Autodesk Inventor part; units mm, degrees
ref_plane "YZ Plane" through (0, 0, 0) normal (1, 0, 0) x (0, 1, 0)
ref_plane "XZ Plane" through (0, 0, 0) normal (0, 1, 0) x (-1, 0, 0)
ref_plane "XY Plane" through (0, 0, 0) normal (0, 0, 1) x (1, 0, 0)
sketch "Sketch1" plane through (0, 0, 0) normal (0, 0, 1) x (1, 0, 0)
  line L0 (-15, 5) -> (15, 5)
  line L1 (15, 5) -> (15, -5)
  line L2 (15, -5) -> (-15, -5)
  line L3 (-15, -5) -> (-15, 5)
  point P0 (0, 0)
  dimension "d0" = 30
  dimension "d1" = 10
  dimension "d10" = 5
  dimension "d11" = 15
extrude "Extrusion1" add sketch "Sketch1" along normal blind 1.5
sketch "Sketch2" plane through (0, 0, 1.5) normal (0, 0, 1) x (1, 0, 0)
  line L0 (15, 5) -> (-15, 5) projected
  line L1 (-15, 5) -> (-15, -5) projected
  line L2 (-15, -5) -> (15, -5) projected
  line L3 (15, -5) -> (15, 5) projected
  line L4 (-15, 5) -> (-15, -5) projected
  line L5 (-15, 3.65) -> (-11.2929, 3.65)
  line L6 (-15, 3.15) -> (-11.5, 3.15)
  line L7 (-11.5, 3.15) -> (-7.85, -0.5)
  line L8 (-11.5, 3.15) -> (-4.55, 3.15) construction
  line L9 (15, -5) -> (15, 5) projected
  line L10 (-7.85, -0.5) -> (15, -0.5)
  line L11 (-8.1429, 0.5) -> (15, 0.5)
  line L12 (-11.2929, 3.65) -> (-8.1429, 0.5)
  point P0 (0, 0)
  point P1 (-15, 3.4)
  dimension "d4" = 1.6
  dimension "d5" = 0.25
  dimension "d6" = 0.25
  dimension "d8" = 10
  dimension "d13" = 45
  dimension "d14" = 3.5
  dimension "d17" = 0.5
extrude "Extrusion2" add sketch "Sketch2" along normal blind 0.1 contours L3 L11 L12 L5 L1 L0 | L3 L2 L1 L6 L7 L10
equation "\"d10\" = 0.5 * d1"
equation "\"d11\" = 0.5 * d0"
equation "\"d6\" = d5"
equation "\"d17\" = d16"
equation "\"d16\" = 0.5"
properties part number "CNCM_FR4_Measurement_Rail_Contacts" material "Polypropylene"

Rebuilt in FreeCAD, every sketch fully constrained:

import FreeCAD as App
import Part
import Sketcher
Q = App.Units.Quantity

doc = App.newDocument("Part")
body = doc.addObject("PartDesign::Body", "Body")

# Sketch on XY plane
sketch1 = doc.addObject("Sketcher::SketchObject", "Sketch")
body.addObject(sketch1)
sketch1.AttachmentSupport = (doc.XY_Plane, [""])
sketch1.MapMode = "FlatFace"
sketch1.addGeometry([
    Part.LineSegment(App.Vector(15, 5, 0), App.Vector(-15, 5, 0)),
    Part.LineSegment(App.Vector(-15, 5, 0), App.Vector(-15, -5, 0)),
    Part.LineSegment(App.Vector(-15, -5, 0), App.Vector(15, -5, 0)),
    Part.LineSegment(App.Vector(15, -5, 0), App.Vector(15, 5, 0)),
], False)
sketch1.addConstraint([
    Sketcher.Constraint("Coincident", 0, 2, 1, 1),
    Sketcher.Constraint("Coincident", 1, 2, 2, 1),
    Sketcher.Constraint("Coincident", 2, 2, 3, 1),
    Sketcher.Constraint("Coincident", 3, 2, 0, 1),
    Sketcher.Constraint("Horizontal", 0),
    Sketcher.Constraint("Vertical", 1),
    Sketcher.Constraint("Horizontal", 2),
    Sketcher.Constraint("Vertical", 3),
    Sketcher.Constraint("Symmetric", 0, 2, 2, 2, -1, 1),
    Sketcher.Constraint("DistanceX", 0, 2, 0, 1, Q("30 mm")),
    Sketcher.Constraint("DistanceY", 1, 2, 1, 1, Q("10 mm")),
])
pad1 = doc.addObject("PartDesign::Pad", "Pad")
body.addObject(pad1)
pad1.Profile = sketch1
pad1.Length = 1.5

# Sketch on XY plane
sketch2 = doc.addObject("Sketcher::SketchObject", "Sketch001")
body.addObject(sketch2)
sketch2.AttachmentSupport = (doc.XY_Plane, [""])
sketch2.MapMode = "FlatFace"
sketch2.AttachmentOffset = App.Placement(App.Vector(0, 0, 1.5), App.Rotation())
sketch2.addGeometry([
    Part.LineSegment(App.Vector(15, 0.5, 0), App.Vector(15, 5, 0)),  # 0
    Part.LineSegment(App.Vector(15, 5, 0), App.Vector(-15, 5, 0)),  # 1
    Part.LineSegment(App.Vector(-15, 5, 0), App.Vector(-15, 3.6, 0)),  # 2
    Part.LineSegment(App.Vector(-15, 3.6, 0), App.Vector(-11.3, 3.6, 0)),  # 3
    Part.LineSegment(App.Vector(-11.3, 3.6, 0), App.Vector(-8.1, 0.5, 0)),  # 4
    Part.LineSegment(App.Vector(-8.1, 0.5, 0), App.Vector(15, 0.5, 0)),  # 5
    Part.LineSegment(App.Vector(15, -5, 0), App.Vector(15, -0.5, 0)),  # 6
    Part.LineSegment(App.Vector(15, -0.5, 0), App.Vector(-7.8, -0.5, 0)),  # 7
    Part.LineSegment(App.Vector(-7.8, -0.5, 0), App.Vector(-11.5, 3.1, 0)),  # 8
    Part.LineSegment(App.Vector(-11.5, 3.1, 0), App.Vector(-15, 3.1, 0)),  # 9
    Part.LineSegment(App.Vector(-15, 3.1, 0), App.Vector(-15, -5, 0)),  # 10
    Part.LineSegment(App.Vector(-15, -5, 0), App.Vector(15, -5, 0)),  # 11
], False)
sketch2.addConstraint([
    Sketcher.Constraint("Coincident", 0, 2, 1, 1),
    Sketcher.Constraint("Coincident", 1, 2, 2, 1),
    Sketcher.Constraint("Coincident", 2, 2, 3, 1),
    Sketcher.Constraint("Coincident", 3, 2, 4, 1),
    Sketcher.Constraint("Coincident", 4, 2, 5, 1),
    Sketcher.Constraint("Coincident", 5, 2, 0, 1),
    Sketcher.Constraint("Coincident", 6, 2, 7, 1),
    Sketcher.Constraint("Coincident", 7, 2, 8, 1),
    Sketcher.Constraint("Coincident", 8, 2, 9, 1),
    Sketcher.Constraint("Coincident", 9, 2, 10, 1),
    Sketcher.Constraint("Coincident", 10, 2, 11, 1),
    Sketcher.Constraint("Coincident", 11, 2, 6, 1),
    Sketcher.Constraint("Vertical", 0),
    Sketcher.Constraint("Horizontal", 1),
    Sketcher.Constraint("Vertical", 2),
    Sketcher.Constraint("Horizontal", 3),
    Sketcher.Constraint("Horizontal", 5),
    Sketcher.Constraint("Vertical", 6),
    Sketcher.Constraint("Horizontal", 7),
    Sketcher.Constraint("Horizontal", 9),
    Sketcher.Constraint("Vertical", 10),
    Sketcher.Constraint("Horizontal", 11),
    Sketcher.Constraint("Symmetric", 0, 2, 10, 2, -1, 1),
    Sketcher.Constraint("Symmetric", 5, 2, 6, 2, -1),
    Sketcher.Constraint("Parallel", 4, 8),
    Sketcher.Constraint("Vertical", 2, 2, 9, 2),
    Sketcher.Constraint("Angle", 4, Q("-45 deg")),
    Sketcher.Constraint("DistanceX", 9, 2, 9, 1, Q("3.5 mm")),
    Sketcher.Constraint("DistanceY", 11, 2, 0, 2, Q("10 mm")),
    Sketcher.Constraint("DistanceY", -1, 1, 4, 2, Q("0.5 mm")),
    Sketcher.Constraint("DistanceY", 8, 2, 3, 2, Q("0.5 mm")),
    Sketcher.Constraint("DistanceX", 1, 2, 1, 1, Q("30 mm")),
    Sketcher.Constraint("DistanceX", 7, 2, 7, 1, Q("22.85 mm")),
    Sketcher.Constraint("DistanceX", 3, 1, 3, 2, Q("3.707 mm")),
])
pad2 = doc.addObject("PartDesign::Pad", "Pad001")
body.addObject(pad2)
pad2.Profile = sketch2
pad2.Length = 0.1

doc.recompute()
